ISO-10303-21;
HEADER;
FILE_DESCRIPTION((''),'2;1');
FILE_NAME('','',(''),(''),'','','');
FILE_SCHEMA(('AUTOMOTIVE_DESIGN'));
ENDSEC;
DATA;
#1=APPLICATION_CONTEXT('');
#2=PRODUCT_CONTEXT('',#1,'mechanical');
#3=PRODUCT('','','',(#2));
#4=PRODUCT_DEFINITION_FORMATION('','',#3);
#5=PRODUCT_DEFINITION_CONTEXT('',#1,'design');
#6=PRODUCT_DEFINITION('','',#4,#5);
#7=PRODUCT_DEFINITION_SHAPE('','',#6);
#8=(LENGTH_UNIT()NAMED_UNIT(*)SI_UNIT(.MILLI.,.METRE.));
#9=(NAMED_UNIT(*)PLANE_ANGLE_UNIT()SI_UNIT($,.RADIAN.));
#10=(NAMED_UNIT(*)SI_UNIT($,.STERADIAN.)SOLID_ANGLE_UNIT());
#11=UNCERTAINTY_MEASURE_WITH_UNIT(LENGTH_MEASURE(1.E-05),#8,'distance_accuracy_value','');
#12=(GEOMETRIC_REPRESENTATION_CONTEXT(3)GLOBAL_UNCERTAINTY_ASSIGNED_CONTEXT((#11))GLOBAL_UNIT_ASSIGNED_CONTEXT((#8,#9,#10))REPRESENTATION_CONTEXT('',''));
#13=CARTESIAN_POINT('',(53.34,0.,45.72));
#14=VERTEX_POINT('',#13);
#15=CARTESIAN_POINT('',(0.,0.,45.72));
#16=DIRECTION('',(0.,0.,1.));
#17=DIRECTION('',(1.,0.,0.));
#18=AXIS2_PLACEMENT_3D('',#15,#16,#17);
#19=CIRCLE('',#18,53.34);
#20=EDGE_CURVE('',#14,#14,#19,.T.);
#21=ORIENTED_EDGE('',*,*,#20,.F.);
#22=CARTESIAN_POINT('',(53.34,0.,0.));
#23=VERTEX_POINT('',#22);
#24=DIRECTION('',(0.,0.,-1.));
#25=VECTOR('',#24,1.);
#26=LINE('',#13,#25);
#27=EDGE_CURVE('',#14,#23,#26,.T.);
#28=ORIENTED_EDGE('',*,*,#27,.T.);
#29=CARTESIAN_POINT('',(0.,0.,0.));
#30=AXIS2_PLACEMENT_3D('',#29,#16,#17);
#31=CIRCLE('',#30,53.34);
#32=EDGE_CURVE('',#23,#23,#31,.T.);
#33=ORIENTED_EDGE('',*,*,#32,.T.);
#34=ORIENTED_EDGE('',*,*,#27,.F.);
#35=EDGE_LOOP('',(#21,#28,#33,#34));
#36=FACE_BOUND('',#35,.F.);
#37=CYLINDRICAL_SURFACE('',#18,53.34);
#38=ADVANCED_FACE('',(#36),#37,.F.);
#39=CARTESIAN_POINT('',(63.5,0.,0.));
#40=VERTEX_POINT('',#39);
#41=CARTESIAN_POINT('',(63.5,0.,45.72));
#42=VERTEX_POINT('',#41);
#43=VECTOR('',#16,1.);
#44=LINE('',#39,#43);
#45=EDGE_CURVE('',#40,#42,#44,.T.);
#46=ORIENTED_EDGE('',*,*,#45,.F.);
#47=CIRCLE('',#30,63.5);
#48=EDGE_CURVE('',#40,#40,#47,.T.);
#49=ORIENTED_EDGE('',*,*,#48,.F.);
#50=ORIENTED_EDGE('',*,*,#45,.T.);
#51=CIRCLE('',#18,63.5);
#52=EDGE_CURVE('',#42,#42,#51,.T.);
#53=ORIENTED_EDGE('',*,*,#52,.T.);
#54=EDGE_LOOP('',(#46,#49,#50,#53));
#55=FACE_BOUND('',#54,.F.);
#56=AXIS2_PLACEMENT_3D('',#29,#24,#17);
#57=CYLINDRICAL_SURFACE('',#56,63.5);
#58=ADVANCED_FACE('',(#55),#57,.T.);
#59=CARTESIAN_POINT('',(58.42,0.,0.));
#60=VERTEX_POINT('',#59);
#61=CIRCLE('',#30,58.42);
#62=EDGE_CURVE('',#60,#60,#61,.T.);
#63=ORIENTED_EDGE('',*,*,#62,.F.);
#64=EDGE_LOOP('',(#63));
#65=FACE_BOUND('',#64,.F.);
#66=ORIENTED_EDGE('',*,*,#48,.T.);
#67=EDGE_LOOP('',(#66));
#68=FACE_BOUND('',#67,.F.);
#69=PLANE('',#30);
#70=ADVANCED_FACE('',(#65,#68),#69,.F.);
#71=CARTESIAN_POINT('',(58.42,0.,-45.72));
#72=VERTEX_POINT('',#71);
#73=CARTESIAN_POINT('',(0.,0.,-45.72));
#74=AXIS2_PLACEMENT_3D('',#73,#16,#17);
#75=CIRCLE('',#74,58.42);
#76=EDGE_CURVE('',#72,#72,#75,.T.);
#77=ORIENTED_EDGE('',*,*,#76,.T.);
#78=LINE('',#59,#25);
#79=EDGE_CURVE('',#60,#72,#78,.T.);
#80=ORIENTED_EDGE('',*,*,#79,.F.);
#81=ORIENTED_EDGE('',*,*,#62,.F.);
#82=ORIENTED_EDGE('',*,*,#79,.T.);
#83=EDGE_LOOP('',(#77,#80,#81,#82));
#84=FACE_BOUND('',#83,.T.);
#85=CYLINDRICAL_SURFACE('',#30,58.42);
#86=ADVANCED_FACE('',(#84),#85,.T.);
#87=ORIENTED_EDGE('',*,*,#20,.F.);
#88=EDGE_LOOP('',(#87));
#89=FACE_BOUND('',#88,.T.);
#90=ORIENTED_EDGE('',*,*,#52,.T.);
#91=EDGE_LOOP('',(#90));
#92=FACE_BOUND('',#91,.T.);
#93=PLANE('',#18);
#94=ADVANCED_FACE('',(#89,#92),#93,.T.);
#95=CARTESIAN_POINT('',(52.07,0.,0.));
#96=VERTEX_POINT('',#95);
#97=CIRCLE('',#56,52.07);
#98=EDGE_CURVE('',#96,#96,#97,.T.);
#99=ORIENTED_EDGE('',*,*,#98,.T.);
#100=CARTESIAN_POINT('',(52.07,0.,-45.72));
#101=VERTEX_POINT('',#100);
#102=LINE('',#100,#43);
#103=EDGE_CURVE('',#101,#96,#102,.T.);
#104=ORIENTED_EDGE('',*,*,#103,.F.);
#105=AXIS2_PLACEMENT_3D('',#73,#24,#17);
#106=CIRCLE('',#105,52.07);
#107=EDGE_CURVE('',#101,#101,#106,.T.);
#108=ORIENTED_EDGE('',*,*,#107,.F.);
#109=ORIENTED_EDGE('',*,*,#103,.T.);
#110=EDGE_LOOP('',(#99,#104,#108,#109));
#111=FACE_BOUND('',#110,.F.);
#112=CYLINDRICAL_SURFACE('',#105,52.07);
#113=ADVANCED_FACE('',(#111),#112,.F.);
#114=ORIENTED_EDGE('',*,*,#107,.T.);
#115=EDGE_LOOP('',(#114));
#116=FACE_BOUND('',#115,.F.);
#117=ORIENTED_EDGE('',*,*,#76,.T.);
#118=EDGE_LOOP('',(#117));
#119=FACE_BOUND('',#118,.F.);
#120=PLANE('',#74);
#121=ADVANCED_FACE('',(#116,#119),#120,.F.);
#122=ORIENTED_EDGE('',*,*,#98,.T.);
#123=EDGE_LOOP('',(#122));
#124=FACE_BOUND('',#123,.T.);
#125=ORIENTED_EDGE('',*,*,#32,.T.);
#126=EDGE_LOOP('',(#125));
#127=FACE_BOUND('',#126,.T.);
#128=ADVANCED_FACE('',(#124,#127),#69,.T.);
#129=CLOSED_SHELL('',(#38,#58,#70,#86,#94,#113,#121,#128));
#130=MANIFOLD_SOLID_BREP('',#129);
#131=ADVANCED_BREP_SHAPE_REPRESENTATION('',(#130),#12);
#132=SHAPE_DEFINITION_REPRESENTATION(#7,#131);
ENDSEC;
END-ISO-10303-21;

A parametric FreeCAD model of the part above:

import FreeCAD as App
import Part
import Sketcher
from FreeCAD import Vector
Q = App.Units.Quantity

doc = App.newDocument("Part")
body = doc.addObject("PartDesign::Body", "Body")

sketch1 = body.newObject("Sketcher::SketchObject", "Sketch")
sketch1.AttachmentSupport = (doc.getObject("XY_Plane"), [""])
sketch1.MapMode = "FlatFace"
sketch1.addGeometry(Part.Circle(Vector(0, 0, 0), Vector(0, 0, 1), 63.5), False)
sketch1.addConstraint(Sketcher.Constraint("Coincident", 0, 3, -1, 1))
sketch1.addConstraint(Sketcher.Constraint("Diameter", 0, Q("5 in")))
pad1 = body.newObject("PartDesign::Pad", "Pad")
pad1.Profile = sketch1
pad1.Length = Q("1.8 in")

sketch2 = body.newObject("Sketcher::SketchObject", "Sketch001")
sketch2.AttachmentSupport = (doc.getObject("XY_Plane"), [""])
sketch2.MapMode = "FlatFace"
sketch2.AttachmentOffset = App.Placement(Vector(0, 0, 1.8 * 25.4), App.Rotation())
sketch2.addGeometry(Part.Circle(Vector(0, 0, 0), Vector(0, 0, 1), 53.34), False)
sketch2.addConstraint(Sketcher.Constraint("Coincident", 0, 3, -1, 1))
sketch2.addConstraint(Sketcher.Constraint("Diameter", 0, Q("4.2 in")))
pocket1 = body.newObject("PartDesign::Pocket", "Pocket")
pocket1.Profile = sketch2
pocket1.Length = Q("2 in")

sketch3 = body.newObject("Sketcher::SketchObject", "Sketch002")
sketch3.AttachmentSupport = (doc.getObject("XY_Plane"), [""])
sketch3.MapMode = "FlatFace"
sketch3.addGeometry(Part.Circle(Vector(0, 0, 0), Vector(0, 0, 1), 58.42), False)
sketch3.addConstraint(Sketcher.Constraint("Coincident", 0, 3, -1, 1))
sketch3.addConstraint(Sketcher.Constraint("Diameter", 0, Q("4.6 in")))
pad2 = body.newObject("PartDesign::Pad", "Pad001")
pad2.Profile = sketch3
pad2.Length = Q("1.8 in")
pad2.Reversed = True

sketch4 = body.newObject("Sketcher::SketchObject", "Sketch003")
sketch4.AttachmentSupport = (doc.getObject("XY_Plane"), [""])
sketch4.MapMode = "FlatFace"
sketch4.AttachmentOffset = App.Placement(Vector(0, 0, -1.8 * 25.4), App.Rotation())
sketch4.addGeometry(Part.Circle(Vector(0, 0, 0), Vector(0, 0, 1), 52.07), False)
sketch4.addConstraint(Sketcher.Constraint("Coincident", 0, 3, -1, 1))
sketch4.addConstraint(Sketcher.Constraint("Diameter", 0, Q("4.1 in")))
pocket2 = body.newObject("PartDesign::Pocket", "Pocket001")
pocket2.Profile = sketch4
pocket2.Length = Q("5 in")
pocket2.Reversed = True

doc.recompute()
